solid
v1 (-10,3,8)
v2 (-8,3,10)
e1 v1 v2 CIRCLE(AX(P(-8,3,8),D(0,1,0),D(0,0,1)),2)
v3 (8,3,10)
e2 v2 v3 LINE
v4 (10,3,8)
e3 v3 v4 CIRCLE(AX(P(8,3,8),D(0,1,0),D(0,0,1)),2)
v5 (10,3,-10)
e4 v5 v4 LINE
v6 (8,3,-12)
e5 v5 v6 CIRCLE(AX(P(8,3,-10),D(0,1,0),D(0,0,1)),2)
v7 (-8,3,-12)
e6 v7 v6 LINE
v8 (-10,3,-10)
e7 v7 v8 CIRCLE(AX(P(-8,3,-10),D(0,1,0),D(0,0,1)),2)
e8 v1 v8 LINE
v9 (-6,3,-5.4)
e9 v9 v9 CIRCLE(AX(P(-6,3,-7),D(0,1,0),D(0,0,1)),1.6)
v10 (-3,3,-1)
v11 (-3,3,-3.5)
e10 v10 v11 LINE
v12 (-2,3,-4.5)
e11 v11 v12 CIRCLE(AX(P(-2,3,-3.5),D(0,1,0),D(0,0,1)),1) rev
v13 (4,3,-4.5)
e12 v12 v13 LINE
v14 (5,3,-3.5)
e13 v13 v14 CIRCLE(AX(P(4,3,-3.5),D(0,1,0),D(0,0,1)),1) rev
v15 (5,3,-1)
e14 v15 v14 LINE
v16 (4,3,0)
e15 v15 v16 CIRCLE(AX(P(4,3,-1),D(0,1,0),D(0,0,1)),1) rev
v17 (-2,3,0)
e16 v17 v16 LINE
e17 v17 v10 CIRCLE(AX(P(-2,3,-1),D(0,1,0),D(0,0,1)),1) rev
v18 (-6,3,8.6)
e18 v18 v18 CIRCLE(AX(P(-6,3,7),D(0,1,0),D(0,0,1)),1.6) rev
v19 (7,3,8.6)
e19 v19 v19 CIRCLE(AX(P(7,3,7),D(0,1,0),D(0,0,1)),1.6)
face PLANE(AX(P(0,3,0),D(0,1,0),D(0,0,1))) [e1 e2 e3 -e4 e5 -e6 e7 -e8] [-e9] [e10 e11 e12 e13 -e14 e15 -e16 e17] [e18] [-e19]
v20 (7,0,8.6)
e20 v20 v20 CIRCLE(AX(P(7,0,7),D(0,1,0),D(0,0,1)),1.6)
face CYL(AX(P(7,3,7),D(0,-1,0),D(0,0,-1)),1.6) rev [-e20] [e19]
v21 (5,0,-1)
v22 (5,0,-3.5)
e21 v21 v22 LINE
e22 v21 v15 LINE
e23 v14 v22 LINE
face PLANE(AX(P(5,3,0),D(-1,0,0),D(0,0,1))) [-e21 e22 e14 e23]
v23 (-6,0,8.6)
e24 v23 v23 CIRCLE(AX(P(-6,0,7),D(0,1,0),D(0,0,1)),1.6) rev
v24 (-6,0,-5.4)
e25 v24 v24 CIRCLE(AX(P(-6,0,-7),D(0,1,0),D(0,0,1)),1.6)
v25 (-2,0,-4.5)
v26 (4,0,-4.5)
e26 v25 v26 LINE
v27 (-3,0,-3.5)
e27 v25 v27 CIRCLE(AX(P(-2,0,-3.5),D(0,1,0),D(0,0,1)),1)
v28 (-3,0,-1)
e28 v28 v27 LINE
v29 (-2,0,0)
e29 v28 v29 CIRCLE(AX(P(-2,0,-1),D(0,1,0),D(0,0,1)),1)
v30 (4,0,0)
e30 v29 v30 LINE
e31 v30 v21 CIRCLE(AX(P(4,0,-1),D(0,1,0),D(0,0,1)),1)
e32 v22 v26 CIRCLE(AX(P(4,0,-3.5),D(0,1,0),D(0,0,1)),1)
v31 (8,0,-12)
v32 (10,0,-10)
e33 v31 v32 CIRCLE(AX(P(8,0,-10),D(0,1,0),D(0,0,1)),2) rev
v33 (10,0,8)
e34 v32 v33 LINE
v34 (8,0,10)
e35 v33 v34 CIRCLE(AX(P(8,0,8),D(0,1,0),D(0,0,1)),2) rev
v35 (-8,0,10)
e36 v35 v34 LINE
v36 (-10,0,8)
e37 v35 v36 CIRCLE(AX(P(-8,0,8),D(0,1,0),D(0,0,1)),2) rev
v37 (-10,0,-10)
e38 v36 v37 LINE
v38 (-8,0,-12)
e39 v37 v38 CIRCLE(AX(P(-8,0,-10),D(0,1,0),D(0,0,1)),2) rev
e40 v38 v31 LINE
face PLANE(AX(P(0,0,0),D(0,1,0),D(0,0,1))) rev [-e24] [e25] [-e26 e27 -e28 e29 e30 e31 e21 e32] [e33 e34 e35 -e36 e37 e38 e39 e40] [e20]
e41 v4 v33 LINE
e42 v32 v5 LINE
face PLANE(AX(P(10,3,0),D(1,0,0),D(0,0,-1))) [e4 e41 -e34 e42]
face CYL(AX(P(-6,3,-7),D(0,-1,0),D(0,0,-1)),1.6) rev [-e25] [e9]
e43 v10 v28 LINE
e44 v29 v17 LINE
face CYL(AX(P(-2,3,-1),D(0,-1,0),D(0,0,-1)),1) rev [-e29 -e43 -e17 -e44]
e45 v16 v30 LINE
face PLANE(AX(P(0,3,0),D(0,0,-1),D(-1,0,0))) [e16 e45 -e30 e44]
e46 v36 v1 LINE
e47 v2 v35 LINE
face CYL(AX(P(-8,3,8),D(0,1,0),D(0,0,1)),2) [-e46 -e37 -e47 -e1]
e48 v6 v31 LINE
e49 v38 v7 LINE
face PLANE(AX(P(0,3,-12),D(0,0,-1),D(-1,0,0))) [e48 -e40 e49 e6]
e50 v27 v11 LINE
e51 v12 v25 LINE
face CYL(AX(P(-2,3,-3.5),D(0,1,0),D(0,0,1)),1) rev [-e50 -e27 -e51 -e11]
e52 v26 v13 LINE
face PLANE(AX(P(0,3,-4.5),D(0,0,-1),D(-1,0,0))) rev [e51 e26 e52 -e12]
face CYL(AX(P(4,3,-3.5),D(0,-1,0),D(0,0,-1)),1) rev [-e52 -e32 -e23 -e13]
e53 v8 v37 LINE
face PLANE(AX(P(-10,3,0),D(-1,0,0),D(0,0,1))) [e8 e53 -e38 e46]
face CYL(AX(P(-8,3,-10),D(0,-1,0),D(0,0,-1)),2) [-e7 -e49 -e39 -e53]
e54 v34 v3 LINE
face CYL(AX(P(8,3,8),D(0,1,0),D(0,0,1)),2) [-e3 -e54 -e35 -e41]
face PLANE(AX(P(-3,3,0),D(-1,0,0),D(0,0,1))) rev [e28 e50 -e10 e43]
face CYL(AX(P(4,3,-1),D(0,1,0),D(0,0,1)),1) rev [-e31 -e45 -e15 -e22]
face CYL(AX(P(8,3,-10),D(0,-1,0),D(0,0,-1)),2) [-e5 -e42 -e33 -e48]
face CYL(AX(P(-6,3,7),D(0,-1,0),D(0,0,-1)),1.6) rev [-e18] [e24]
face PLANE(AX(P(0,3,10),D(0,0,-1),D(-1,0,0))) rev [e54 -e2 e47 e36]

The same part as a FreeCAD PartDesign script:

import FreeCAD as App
import Part
import Sketcher

V = App.Vector


def edges_at(feature, points):
    """Names of the edges that pass closest to the given points."""
    edges = feature.Shape.Edges
    near = lambda p: min(range(len(edges)), key=lambda i: edges[i].distToShape(Part.Vertex(*p))[0])
    return sorted({f"Edge{near(p) + 1}" for p in points})

doc = App.newDocument("Part")
params = doc.addObject("Spreadsheet::Sheet", "Params")
for row, (alias, value) in enumerate([
    ("sketch1_diameter", "3.2 mm"),
    ("sketch1_width", "20 mm"),
    ("sketch1_width2", "8 mm"),
    ("sketch1_height", "22 mm"),
    ("sketch1_height2", "4.5 mm"),
    ("pad1_length", "3 mm"),
    ("fillet_radius", "2 mm"),
    ("fillet2_radius", "1 mm"),
], start=1):
    params.set(f"A{row}", alias)
    params.set(f"B{row}", "=" + value)
    params.setAlias(f"B{row}", alias)

body = doc.addObject("PartDesign::Body", "Body")

# Sketch on XZ plane
sketch1 = body.newObject("Sketcher::SketchObject", "Sketch")
sketch1.AttachmentSupport = (doc.getObject("XZ_Plane"), [""])
sketch1.MapMode = "FlatFace"
sketch1.addGeometry(Part.LineSegment(V(-10, -12, 0), V(-10, 10, 0)), False)
sketch1.addGeometry(Part.LineSegment(V(-10, 10, 0), V(10, 10, 0)), False)
sketch1.addGeometry(Part.LineSegment(V(10, 10, 0), V(10, -12, 0)), False)
sketch1.addGeometry(Part.LineSegment(V(10, -12, 0), V(-10, -12, 0)), False)
sketch1.addGeometry(Part.Circle(V(-6, 7, 0), V(0, 0, 1), 1.6), False)
sketch1.addGeometry(Part.Circle(V(7, 7, 0), V(0, 0, 1), 1.6), False)
sketch1.addGeometry(Part.Circle(V(-6, -7, 0), V(0, 0, 1), 1.6), False)
sketch1.addGeometry(Part.LineSegment(V(5, 0, 0), V(-3, 0, 0)), False)
sketch1.addGeometry(Part.LineSegment(V(-3, 0, 0), V(-3, -4.5, 0)), False)
sketch1.addGeometry(Part.LineSegment(V(-3, -4.5, 0), V(5, -4.5, 0)), False)
sketch1.addGeometry(Part.LineSegment(V(5, -4.5, 0), V(5, 0, 0)), False)
sketch1.addConstraint(Sketcher.Constraint("Coincident", 0, 2, 1, 1))
sketch1.addConstraint(Sketcher.Constraint("Coincident", 1, 2, 2, 1))
sketch1.addConstraint(Sketcher.Constraint("Coincident", 2, 2, 3, 1))
sketch1.addConstraint(Sketcher.Constraint("Coincident", 3, 2, 0, 1))
sketch1.addConstraint(Sketcher.Constraint("Coincident", 7, 2, 8, 1))
sketch1.addConstraint(Sketcher.Constraint("Coincident", 8, 2, 9, 1))
sketch1.addConstraint(Sketcher.Constraint("Coincident", 9, 2, 10, 1))
sketch1.addConstraint(Sketcher.Constraint("Coincident", 10, 2, 7, 1))
sketch1.addConstraint(Sketcher.Constraint("Vertical", 0))
sketch1.addConstraint(Sketcher.Constraint("Horizontal", 1))
sketch1.addConstraint(Sketcher.Constraint("Vertical", 2))
sketch1.addConstraint(Sketcher.Constraint("Horizontal", 3))
sketch1.addConstraint(Sketcher.Constraint("Horizontal", 7))
sketch1.addConstraint(Sketcher.Constraint("Vertical", 8))
sketch1.addConstraint(Sketcher.Constraint("Horizontal", 9))
sketch1.addConstraint(Sketcher.Constraint("Vertical", 10))
sketch1.addConstraint(Sketcher.Constraint("Equal", 4, 5))
sketch1.addConstraint(Sketcher.Constraint("Equal", 5, 6))
sketch1.addConstraint(Sketcher.Constraint("Symmetric", 4, 3, 6, 3, -1))
sketch1.addConstraint(Sketcher.Constraint("PointOnObject", 7, 2, -1))
sketch1.addConstraint(Sketcher.Constraint("Horizontal", 4, 3, 5, 3))
sketch1.addConstraint(Sketcher.Constraint("Diameter", 4, 3.2))
sketch1.addConstraint(Sketcher.Constraint("DistanceX", 1, 1, 1, 2, 20.0))
sketch1.addConstraint(Sketcher.Constraint("DistanceX", 7, 2, 7, 1, 8.0))
sketch1.addConstraint(Sketcher.Constraint("DistanceY", 0, 1, 0, 2, 22.0))
sketch1.addConstraint(Sketcher.Constraint("DistanceY", 8, 2, 8, 1, 4.5))
sketch1.addConstraint(Sketcher.Constraint("DistanceX", 4, 3, -1, 1, 6.0))
sketch1.addConstraint(Sketcher.Constraint("DistanceY", -1, 1, 4, 3, 7.0))
sketch1.addConstraint(Sketcher.Constraint("DistanceX", -1, 1, 5, 3, 7.0))
sketch1.addConstraint(Sketcher.Constraint("DistanceX", 0, 2, -1, 1, 10.0))
sketch1.addConstraint(Sketcher.Constraint("DistanceY", -1, 1, 0, 2, 10.0))
sketch1.addConstraint(Sketcher.Constraint("DistanceX", 7, 2, -1, 1, 3.0))
sketch1.setExpression("Constraints[21]", "Params.sketch1_diameter")
sketch1.setExpression("Constraints[22]", "Params.sketch1_width")
sketch1.setExpression("Constraints[23]", "Params.sketch1_width2")
sketch1.setExpression("Constraints[24]", "Params.sketch1_height")
sketch1.setExpression("Constraints[25]", "Params.sketch1_height2")
pad1 = body.newObject("PartDesign::Pad", "Pad")
pad1.Profile = sketch1
pad1.setExpression("Length", "Params.pad1_length")
pad1.Reversed = True
doc.recompute()

fillet = body.newObject("PartDesign::Fillet", "Fillet")
fillet.Base = (pad1, edges_at(pad1, [
    (10, 1.5, 10),
    (-10, 1.5, 10),
    (-10, 1.5, -12),
    (10, 1.5, -12),
]))
fillet.setExpression("Radius", "Params.fillet_radius")
doc.recompute()

fillet2 = body.newObject("PartDesign::Fillet", "Fillet001")
fillet2.Base = (fillet, edges_at(fillet, [
    (5, 1.5, -4.5),
    (-3, 1.5, -4.5),
    (-3, 1.5, 0),
    (5, 1.5, 0),
]))
fillet2.setExpression("Radius", "Params.fillet2_radius")

doc.recompute()
